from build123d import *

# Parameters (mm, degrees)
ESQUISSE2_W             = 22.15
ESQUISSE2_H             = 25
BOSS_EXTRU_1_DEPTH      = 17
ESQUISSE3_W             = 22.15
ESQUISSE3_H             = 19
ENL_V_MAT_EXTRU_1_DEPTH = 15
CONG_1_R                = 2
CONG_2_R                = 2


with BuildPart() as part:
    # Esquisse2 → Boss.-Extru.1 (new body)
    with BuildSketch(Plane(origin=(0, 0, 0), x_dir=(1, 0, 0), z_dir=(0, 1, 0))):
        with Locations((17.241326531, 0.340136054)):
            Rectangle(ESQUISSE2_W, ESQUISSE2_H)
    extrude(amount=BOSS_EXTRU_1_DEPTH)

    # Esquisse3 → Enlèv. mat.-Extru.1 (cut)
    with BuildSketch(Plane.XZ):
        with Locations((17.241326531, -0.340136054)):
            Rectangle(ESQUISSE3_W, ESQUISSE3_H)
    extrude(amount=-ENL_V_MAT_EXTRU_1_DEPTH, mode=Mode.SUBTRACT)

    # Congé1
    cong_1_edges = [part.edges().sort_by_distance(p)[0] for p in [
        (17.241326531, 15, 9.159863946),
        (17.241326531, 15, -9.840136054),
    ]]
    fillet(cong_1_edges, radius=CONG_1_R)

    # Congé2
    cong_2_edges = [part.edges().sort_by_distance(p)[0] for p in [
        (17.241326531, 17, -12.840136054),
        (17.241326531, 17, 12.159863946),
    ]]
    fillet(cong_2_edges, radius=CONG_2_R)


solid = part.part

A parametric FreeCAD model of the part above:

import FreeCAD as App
import Part
import Sketcher


def edges_at(feature, points):
    """Names of the edges that pass closest to the given points."""
    edges = feature.Shape.Edges
    near = lambda p: min(range(len(edges)), key=lambda i: edges[i].distToShape(Part.Vertex(*p))[0])
    return sorted({f"Edge{near(p) + 1}" for p in points})

doc = App.newDocument("Part")
params = doc.addObject("Spreadsheet::Sheet", "Params")
for row, (alias, value) in enumerate([
    ("sketch1_height", "25 mm"),
    ("sketch1_width", "22.15 mm"),
    ("pad1_length", "17 mm"),
    ("sketch2_height", "19 mm"),
    ("sketch2_width", "22.15 mm"),
    ("pocket1_length", "15 mm"),
    ("fillet_radius", "2 mm"),
    ("fillet2_radius", "2 mm"),
], start=1):
    params.set(f"A{row}", alias)
    params.set(f"B{row}", "=" + value)
    params.setAlias(f"B{row}", alias)

body = doc.addObject("PartDesign::Body", "Body")

# Sketch on XZ plane
sketch1 = body.newObject("Sketcher::SketchObject", "Sketch")
sketch1.AttachmentSupport = (doc.getObject("XZ_Plane"), [""])
sketch1.MapMode = "FlatFace"
sketch1.addGeometry([
    Part.LineSegment(App.Vector(6.166327, -12.840136, 0), App.Vector(6.166327, 12.159864, 0)),
    Part.LineSegment(App.Vector(6.166327, 12.159864, 0), App.Vector(28.316327, 12.159864, 0)),
    Part.LineSegment(App.Vector(28.316327, 12.159864, 0), App.Vector(28.316327, -12.840136, 0)),
    Part.LineSegment(App.Vector(28.316327, -12.840136, 0), App.Vector(6.166327, -12.840136, 0)),
], False)
sketch1.addConstraint([
    Sketcher.Constraint("Coincident", 0, 2, 1, 1),
    Sketcher.Constraint("Coincident", 1, 2, 2, 1),
    Sketcher.Constraint("Coincident", 2, 2, 3, 1),
    Sketcher.Constraint("Coincident", 3, 2, 0, 1),
    Sketcher.Constraint("Vertical", 0),
    Sketcher.Constraint("Horizontal", 1),
    Sketcher.Constraint("Vertical", 2),
    Sketcher.Constraint("Horizontal", 3),
    Sketcher.Constraint("DistanceY", 0, 1, 0, 2, 25.0),
    Sketcher.Constraint("DistanceX", 1, 1, 1, 2, 22.15),
    Sketcher.Constraint("DistanceX", -1, 1, 0, 2, 6.166327),
    Sketcher.Constraint("DistanceY", -1, 1, 0, 2, 12.159864),
])
sketch1.setExpression("Constraints[8]", "Params.sketch1_height")
sketch1.setExpression("Constraints[9]", "Params.sketch1_width")
pad1 = body.newObject("PartDesign::Pad", "Pad")
pad1.Profile = sketch1
pad1.setExpression("Length", "Params.pad1_length")
pad1.Reversed = True

# Sketch on XZ plane
sketch2 = body.newObject("Sketcher::SketchObject", "Sketch001")
sketch2.AttachmentSupport = (doc.getObject("XZ_Plane"), [""])
sketch2.MapMode = "FlatFace"
sketch2.addGeometry([
    Part.LineSegment(App.Vector(6.166327, 9.159864, 0), App.Vector(6.166327, -9.840136, 0)),
    Part.LineSegment(App.Vector(6.166327, -9.840136, 0), App.Vector(28.316327, -9.840136, 0)),
    Part.LineSegment(App.Vector(28.316327, -9.840136, 0), App.Vector(28.316327, 9.159864, 0)),
    Part.LineSegment(App.Vector(28.316327, 9.159864, 0), App.Vector(6.166327, 9.159864, 0)),
], False)
sketch2.addConstraint([
    Sketcher.Constraint("Coincident", 0, 2, 1, 1),
    Sketcher.Constraint("Coincident", 1, 2, 2, 1),
    Sketcher.Constraint("Coincident", 2, 2, 3, 1),
    Sketcher.Constraint("Coincident", 3, 2, 0, 1),
    Sketcher.Constraint("Vertical", 0),
    Sketcher.Constraint("Horizontal", 1),
    Sketcher.Constraint("Vertical", 2),
    Sketcher.Constraint("Horizontal", 3),
    Sketcher.Constraint("DistanceY", 0, 2, 0, 1, 19.0),
    Sketcher.Constraint("DistanceX", 1, 1, 1, 2, 22.15),
    Sketcher.Constraint("DistanceX", -1, 1, 0, 2, 6.166327),
    Sketcher.Constraint("DistanceY", 0, 2, -1, 1, 9.840136),
])
sketch2.setExpression("Constraints[8]", "Params.sketch2_height")
sketch2.setExpression("Constraints[9]", "Params.sketch2_width")
pocket1 = body.newObject("PartDesign::Pocket", "Pocket")
pocket1.Profile = sketch2
pocket1.setExpression("Length", "Params.pocket1_length")
doc.recompute()

fillet = body.newObject("PartDesign::Fillet", "Fillet")
fillet.Base = (pocket1, edges_at(pocket1, [(17.241, 15, 9.16), (17.241, 15, -9.84)]))
fillet.setExpression("Radius", "Params.fillet_radius")
doc.recompute()

fillet2 = body.newObject("PartDesign::Fillet", "Fillet001")
fillet2.Base = (fillet, edges_at(fillet, [(17.241, 17, -12.84), (17.241, 17, 12.16)]))
fillet2.setExpression("Radius", "Params.fillet2_radius")

doc.recompute()
